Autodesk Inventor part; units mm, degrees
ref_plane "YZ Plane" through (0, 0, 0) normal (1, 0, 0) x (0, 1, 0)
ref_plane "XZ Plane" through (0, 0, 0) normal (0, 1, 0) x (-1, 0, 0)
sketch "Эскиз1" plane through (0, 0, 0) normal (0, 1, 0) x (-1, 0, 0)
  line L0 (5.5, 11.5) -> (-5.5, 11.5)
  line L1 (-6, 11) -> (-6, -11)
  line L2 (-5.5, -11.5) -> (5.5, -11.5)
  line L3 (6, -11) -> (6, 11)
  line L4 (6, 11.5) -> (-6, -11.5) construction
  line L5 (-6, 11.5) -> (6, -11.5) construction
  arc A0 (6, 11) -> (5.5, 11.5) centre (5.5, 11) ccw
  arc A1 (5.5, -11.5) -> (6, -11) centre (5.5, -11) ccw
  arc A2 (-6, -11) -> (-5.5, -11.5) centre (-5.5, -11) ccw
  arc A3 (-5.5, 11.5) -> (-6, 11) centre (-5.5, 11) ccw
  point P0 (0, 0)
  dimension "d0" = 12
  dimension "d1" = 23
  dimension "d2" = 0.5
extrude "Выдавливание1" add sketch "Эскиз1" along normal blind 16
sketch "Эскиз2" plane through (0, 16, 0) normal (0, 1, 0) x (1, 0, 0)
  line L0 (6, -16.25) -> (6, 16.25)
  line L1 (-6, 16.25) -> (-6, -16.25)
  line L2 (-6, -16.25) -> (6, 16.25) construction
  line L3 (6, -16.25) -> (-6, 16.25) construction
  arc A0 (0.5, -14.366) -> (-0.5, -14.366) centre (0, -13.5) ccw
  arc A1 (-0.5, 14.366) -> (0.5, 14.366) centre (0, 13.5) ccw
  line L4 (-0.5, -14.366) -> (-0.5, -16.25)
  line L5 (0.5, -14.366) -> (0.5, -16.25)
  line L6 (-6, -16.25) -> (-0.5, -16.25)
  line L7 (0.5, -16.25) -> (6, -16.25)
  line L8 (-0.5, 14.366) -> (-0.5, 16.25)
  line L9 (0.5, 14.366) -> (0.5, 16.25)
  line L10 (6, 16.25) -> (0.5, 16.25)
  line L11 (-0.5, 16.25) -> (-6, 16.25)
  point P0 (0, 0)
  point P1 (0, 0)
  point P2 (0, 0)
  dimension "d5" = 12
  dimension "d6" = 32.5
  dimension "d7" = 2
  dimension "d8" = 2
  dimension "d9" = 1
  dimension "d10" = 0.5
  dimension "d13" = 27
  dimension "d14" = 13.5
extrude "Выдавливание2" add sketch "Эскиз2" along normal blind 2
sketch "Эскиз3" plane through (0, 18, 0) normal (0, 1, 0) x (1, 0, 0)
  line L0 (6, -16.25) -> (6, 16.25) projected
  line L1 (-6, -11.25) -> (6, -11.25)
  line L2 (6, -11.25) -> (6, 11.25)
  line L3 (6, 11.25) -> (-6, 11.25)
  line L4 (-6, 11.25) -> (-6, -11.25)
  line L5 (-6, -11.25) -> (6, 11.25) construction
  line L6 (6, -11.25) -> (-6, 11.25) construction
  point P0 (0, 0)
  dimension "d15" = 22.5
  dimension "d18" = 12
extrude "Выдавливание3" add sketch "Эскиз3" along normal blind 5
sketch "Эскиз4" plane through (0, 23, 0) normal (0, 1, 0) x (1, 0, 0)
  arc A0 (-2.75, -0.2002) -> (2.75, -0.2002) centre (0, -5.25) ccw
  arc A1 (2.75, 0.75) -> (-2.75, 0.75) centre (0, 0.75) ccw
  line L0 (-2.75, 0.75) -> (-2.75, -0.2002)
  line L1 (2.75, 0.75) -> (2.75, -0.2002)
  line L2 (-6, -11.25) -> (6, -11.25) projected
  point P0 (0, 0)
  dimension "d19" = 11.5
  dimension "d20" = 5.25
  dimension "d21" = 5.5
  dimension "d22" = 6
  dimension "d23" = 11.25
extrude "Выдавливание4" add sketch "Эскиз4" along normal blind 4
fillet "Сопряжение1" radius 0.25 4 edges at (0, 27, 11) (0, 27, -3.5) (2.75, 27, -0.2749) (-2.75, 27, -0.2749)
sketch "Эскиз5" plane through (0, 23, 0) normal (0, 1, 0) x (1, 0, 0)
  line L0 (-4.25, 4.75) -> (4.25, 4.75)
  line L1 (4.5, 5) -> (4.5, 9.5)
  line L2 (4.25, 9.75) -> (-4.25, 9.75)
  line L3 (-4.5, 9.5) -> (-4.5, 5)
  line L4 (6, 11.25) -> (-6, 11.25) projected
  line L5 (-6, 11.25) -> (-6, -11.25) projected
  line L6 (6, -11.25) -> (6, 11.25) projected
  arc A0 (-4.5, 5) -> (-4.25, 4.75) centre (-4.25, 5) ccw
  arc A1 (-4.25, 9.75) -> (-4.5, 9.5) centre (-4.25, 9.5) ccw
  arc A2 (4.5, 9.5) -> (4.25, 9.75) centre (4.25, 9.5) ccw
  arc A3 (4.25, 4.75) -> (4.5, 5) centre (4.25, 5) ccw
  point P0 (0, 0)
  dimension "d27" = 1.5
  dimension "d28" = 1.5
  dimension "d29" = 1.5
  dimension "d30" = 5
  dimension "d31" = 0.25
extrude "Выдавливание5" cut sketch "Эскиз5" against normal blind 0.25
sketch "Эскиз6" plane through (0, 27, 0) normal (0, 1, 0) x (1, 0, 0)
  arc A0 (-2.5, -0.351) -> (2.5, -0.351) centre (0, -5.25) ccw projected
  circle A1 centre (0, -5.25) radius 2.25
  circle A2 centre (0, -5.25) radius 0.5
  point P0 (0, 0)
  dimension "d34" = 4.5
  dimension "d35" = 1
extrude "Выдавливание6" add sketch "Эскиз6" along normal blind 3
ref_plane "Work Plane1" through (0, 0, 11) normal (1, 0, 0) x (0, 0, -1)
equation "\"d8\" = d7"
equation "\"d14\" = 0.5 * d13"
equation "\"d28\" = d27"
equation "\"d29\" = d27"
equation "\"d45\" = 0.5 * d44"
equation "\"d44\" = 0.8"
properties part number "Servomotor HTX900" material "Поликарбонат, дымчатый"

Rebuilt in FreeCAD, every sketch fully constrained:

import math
import FreeCAD as App
import Part
import Sketcher


def edges_at(feature, points):
    """Names of the edges that pass closest to the given points."""
    edges = feature.Shape.Edges
    near = lambda p: min(range(len(edges)), key=lambda i: edges[i].distToShape(Part.Vertex(*p))[0])
    return sorted({f"Edge{near(p) + 1}" for p in points})


def add_polygon(sketch, points):
    """Adds a closed chain of lines whose ends are joined by coincident constraints."""
    first, n = sketch.GeometryCount, len(points)
    for a, b in zip(points, points[1:] + points[:1]):
        sketch.addGeometry(Part.LineSegment(App.Vector(*a, 0), App.Vector(*b, 0)), False)
    for i in range(n):
        sketch.addConstraint(Sketcher.Constraint("Coincident", first + i, 2, first + (i + 1) % n, 1))

doc = App.newDocument("Part")
body = doc.addObject("PartDesign::Body", "Body")

sketch1 = body.newObject("Sketcher::SketchObject", "Sketch")
sketch1.AttachmentSupport = (doc.getObject("XZ_Plane"), [""])
sketch1.MapMode = "FlatFace"
sketch1.addGeometry(Part.ArcOfCircle(Part.Circle(App.Vector(-5.5, 11, 0), App.Vector(0, 0, 1), 0.5), math.radians(90), math.radians(180)), False)
sketch1.addGeometry(Part.LineSegment(App.Vector(-5.5, 11.5, 0), App.Vector(5.5, 11.5, 0)), False)
sketch1.addGeometry(Part.ArcOfCircle(Part.Circle(App.Vector(5.5, 11, 0), App.Vector(0, 0, 1), 0.5), math.radians(0), math.radians(90)), False)
sketch1.addGeometry(Part.LineSegment(App.Vector(6, 11, 0), App.Vector(6, -11, 0)), False)
sketch1.addGeometry(Part.ArcOfCircle(Part.Circle(App.Vector(5.5, -11, 0), App.Vector(0, 0, 1), 0.5), math.radians(-90), math.radians(0)), False)
sketch1.addGeometry(Part.LineSegment(App.Vector(5.5, -11.5, 0), App.Vector(-5.5, -11.5, 0)), False)
sketch1.addGeometry(Part.ArcOfCircle(Part.Circle(App.Vector(-5.5, -11, 0), App.Vector(0, 0, 1), 0.5), math.radians(180), math.radians(270)), False)
sketch1.addGeometry(Part.LineSegment(App.Vector(-6, -11, 0), App.Vector(-6, 11, 0)), False)
sketch1.addConstraint(Sketcher.Constraint("Tangent", 0, 1, 1, 1))
sketch1.addConstraint(Sketcher.Constraint("Tangent", 1, 2, 2, 2))
sketch1.addConstraint(Sketcher.Constraint("Tangent", 2, 1, 3, 1))
sketch1.addConstraint(Sketcher.Constraint("Tangent", 3, 2, 4, 2))
sketch1.addConstraint(Sketcher.Constraint("Tangent", 4, 1, 5, 1))
sketch1.addConstraint(Sketcher.Constraint("Tangent", 5, 2, 6, 2))
sketch1.addConstraint(Sketcher.Constraint("Tangent", 6, 1, 7, 1))
sketch1.addConstraint(Sketcher.Constraint("Tangent", 7, 2, 0, 2))
sketch1.addConstraint(Sketcher.Constraint("Horizontal", 1))
sketch1.addConstraint(Sketcher.Constraint("Vertical", 3))
sketch1.addConstraint(Sketcher.Constraint("Horizontal", 5))
sketch1.addConstraint(Sketcher.Constraint("Vertical", 7))
sketch1.addConstraint(Sketcher.Constraint("Equal", 0, 2))
sketch1.addConstraint(Sketcher.Constraint("Equal", 2, 4))
sketch1.addConstraint(Sketcher.Constraint("Equal", 4, 6))
sketch1.addConstraint(Sketcher.Constraint("Symmetric", 0, 3, 4, 3, -1, 1))
sketch1.addConstraint(Sketcher.Constraint("Radius", 0, 0.5))
sketch1.addConstraint(Sketcher.Constraint("DistanceX", 6, 1, 3, 2, 12.0))
sketch1.addConstraint(Sketcher.Constraint("DistanceY", 3, 2, 3, 1, 22.0))
pad1 = body.newObject("PartDesign::Pad", "Pad")
pad1.Profile = sketch1
pad1.Length = 16
pad1.Reversed = True

sketch2 = body.newObject("Sketcher::SketchObject", "Sketch001")
sketch2.AttachmentSupport = (doc.getObject("XZ_Plane"), [""])
sketch2.MapMode = "FlatFace"
sketch2.AttachmentOffset = App.Placement(App.Vector(0, 0, -16), App.Rotation())
sketch2.addGeometry(Part.LineSegment(App.Vector(0.5, 16.2, 0), App.Vector(6, 16.2, 0)), False)
sketch2.addGeometry(Part.LineSegment(App.Vector(6, 16.2, 0), App.Vector(6, -16.2, 0)), False)
sketch2.addGeometry(Part.LineSegment(App.Vector(6, -16.2, 0), App.Vector(0.5, -16.2, 0)), False)
sketch2.addGeometry(Part.LineSegment(App.Vector(0.5, -16.2, 0), App.Vector(0.5, -14.4, 0)), False)
sketch2.addGeometry(Part.ArcOfCircle(Part.Circle(App.Vector(0, -13.5, 0), App.Vector(0, 0, 1), 1), math.radians(-60), math.radians(240)), False)
sketch2.addGeometry(Part.LineSegment(App.Vector(-0.5, -14.4, 0), App.Vector(-0.5, -16.2, 0)), False)
sketch2.addGeometry(Part.LineSegment(App.Vector(-0.5, -16.2, 0), App.Vector(-6, -16.2, 0)), False)
sketch2.addGeometry(Part.LineSegment(App.Vector(-6, -16.2, 0), App.Vector(-6, 16.2, 0)), False)
sketch2.addGeometry(Part.LineSegment(App.Vector(-6, 16.2, 0), App.Vector(-0.5, 16.2, 0)), False)
sketch2.addGeometry(Part.LineSegment(App.Vector(-0.5, 16.2, 0), App.Vector(-0.5, 14.4, 0)), False)
sketch2.addGeometry(Part.ArcOfCircle(Part.Circle(App.Vector(0, 13.5, 0), App.Vector(0, 0, 1), 1), math.radians(120), math.radians(420)), False)
sketch2.addGeometry(Part.LineSegment(App.Vector(0.5, 14.4, 0), App.Vector(0.5, 16.2, 0)), False)
sketch2.addConstraint(Sketcher.Constraint("Coincident", 0, 2, 1, 1))
sketch2.addConstraint(Sketcher.Constraint("Coincident", 1, 2, 2, 1))
sketch2.addConstraint(Sketcher.Constraint("Coincident", 2, 2, 3, 1))
sketch2.addConstraint(Sketcher.Constraint("Coincident", 3, 2, 4, 1))
sketch2.addConstraint(Sketcher.Constraint("Coincident", 4, 2, 5, 1))
sketch2.addConstraint(Sketcher.Constraint("Coincident", 5, 2, 6, 1))
sketch2.addConstraint(Sketcher.Constraint("Coincident", 6, 2, 7, 1))
sketch2.addConstraint(Sketcher.Constraint("Coincident", 7, 2, 8, 1))
sketch2.addConstraint(Sketcher.Constraint("Coincident", 8, 2, 9, 1))
sketch2.addConstraint(Sketcher.Constraint("Coincident", 9, 2, 10, 1))
sketch2.addConstraint(Sketcher.Constraint("Coincident", 10, 2, 11, 1))
sketch2.addConstraint(Sketcher.Constraint("Coincident", 11, 2, 0, 1))
sketch2.addConstraint(Sketcher.Constraint("Horizontal", 0))
sketch2.addConstraint(Sketcher.Constraint("Vertical", 1))
sketch2.addConstraint(Sketcher.Constraint("Horizontal", 2))
sketch2.addConstraint(Sketcher.Constraint("Vertical", 3))
sketch2.addConstraint(Sketcher.Constraint("Vertical", 5))
sketch2.addConstraint(Sketcher.Constraint("Horizontal", 6))
sketch2.addConstraint(Sketcher.Constraint("Vertical", 7))
sketch2.addConstraint(Sketcher.Constraint("Horizontal", 8))
sketch2.addConstraint(Sketcher.Constraint("Vertical", 9))
sketch2.addConstraint(Sketcher.Constraint("Vertical", 11))
sketch2.addConstraint(Sketcher.Constraint("Equal", 4, 10))
sketch2.addConstraint(Sketcher.Constraint("Symmetric", 4, 3, 10, 3, -1, 1))
sketch2.addConstraint(Sketcher.Constraint("Symmetric", 0, 2, 6, 2, -1, 1))
sketch2.addConstraint(Sketcher.Constraint("Symmetric", 2, 2, 8, 2, -1, 1))
sketch2.addConstraint(Sketcher.Constraint("Symmetric", 3, 2, 4, 2, -2))
sketch2.addConstraint(Sketcher.Constraint("Symmetric", 8, 2, 11, 2, -2))
sketch2.addConstraint(Sketcher.Constraint("Radius", 4, 1.0))
sketch2.addConstraint(Sketcher.Constraint("DistanceY", 1, 2, 1, 1, 32.5))
sketch2.addConstraint(Sketcher.Constraint("DistanceY", 4, 3, 10, 3, 27.0))
sketch2.addConstraint(Sketcher.Constraint("DistanceX", 4, 2, 3, 2, 1.0))
sketch2.addConstraint(Sketcher.Constraint("DistanceX", 7, 2, 0, 2, 12.0))
pad2 = body.newObject("PartDesign::Pad", "Pad001")
pad2.Profile = sketch2
pad2.Length = 2
pad2.Reversed = True

sketch3 = body.newObject("Sketcher::SketchObject", "Sketch002")
sketch3.AttachmentSupport = (doc.getObject("XZ_Plane"), [""])
sketch3.MapMode = "FlatFace"
sketch3.AttachmentOffset = App.Placement(App.Vector(0, 0, -18), App.Rotation())
add_polygon(sketch3, [(-6, 11), (6, 11), (6, -11), (-6, -11)])
sketch3.addConstraint(Sketcher.Constraint("Horizontal", 0))
sketch3.addConstraint(Sketcher.Constraint("Vertical", 1))
sketch3.addConstraint(Sketcher.Constraint("Horizontal", 2))
sketch3.addConstraint(Sketcher.Constraint("Vertical", 3))
sketch3.addConstraint(Sketcher.Constraint("Symmetric", 0, 2, 2, 2, -1, 1))
sketch3.addConstraint(Sketcher.Constraint("DistanceX", 0, 1, 0, 2, 12.0))
sketch3.addConstraint(Sketcher.Constraint("DistanceY", 1, 2, 1, 1, 22.5))
pad3 = body.newObject("PartDesign::Pad", "Pad002")
pad3.Profile = sketch3
pad3.Length = 5
pad3.Reversed = True

sketch4 = body.newObject("Sketcher::SketchObject", "Sketch003")
sketch4.AttachmentSupport = (doc.getObject("XZ_Plane"), [""])
sketch4.MapMode = "FlatFace"
sketch4.AttachmentOffset = App.Placement(App.Vector(0, 0, -23), App.Rotation())
sketch4.addGeometry(Part.LineSegment(App.Vector(-2.8, -0.8, 0), App.Vector(-2.8, 0.2, 0)), False)
sketch4.addGeometry(Part.ArcOfCircle(Part.Circle(App.Vector(0, 5.2, 0), App.Vector(0, 0, 1), 5.8), math.radians(-61), math.radians(241)), False)
sketch4.addGeometry(Part.LineSegment(App.Vector(2.8, 0.2, 0), App.Vector(2.8, -0.8, 0)), False)
sketch4.addGeometry(Part.ArcOfCircle(Part.Circle(App.Vector(0, -0.8, 0), App.Vector(0, 0, 1), 2.8), math.radians(180), math.radians(360)), False)
sketch4.addConstraint(Sketcher.Constraint("Coincident", 0, 2, 1, 2))
sketch4.addConstraint(Sketcher.Constraint("Coincident", 1, 1, 2, 1))
sketch4.addConstraint(Sketcher.Constraint("Tangent", 2, 2, 3, 2))
sketch4.addConstraint(Sketcher.Constraint("Tangent", 3, 1, 0, 1))
sketch4.addConstraint(Sketcher.Constraint("Vertical", 0))
sketch4.addConstraint(Sketcher.Constraint("Vertical", 2))
sketch4.addConstraint(Sketcher.Constraint("Symmetric", 0, 2, 1, 1, -2))
sketch4.addConstraint(Sketcher.Constraint("Radius", 1, 5.75))
sketch4.addConstraint(Sketcher.Constraint("Radius", 3, 2.75))
sketch4.addConstraint(Sketcher.Constraint("DistanceY", 3, 3, 1, 3, 6.0))
sketch4.addConstraint(Sketcher.Constraint("DistanceY", -1, 1, 1, 3, 5.25))
pad4 = body.newObject("PartDesign::Pad", "Pad003")
pad4.Profile = sketch4
pad4.Length = 4
pad4.Reversed = True
doc.recompute()

fillet = body.newObject("PartDesign::Fillet", "Fillet")
fillet.Base = (pad4, edges_at(pad4, [
    (0, 27, 11),
    (0, 27, -3.5),
    (2.75, 27, -0.275),
    (-2.75, 27, -0.275),
]))
fillet.Radius = 0.25

sketch5 = body.newObject("Sketcher::SketchObject", "Sketch004")
sketch5.AttachmentSupport = (doc.getObject("XZ_Plane"), [""])
sketch5.MapMode = "FlatFace"
sketch5.AttachmentOffset = App.Placement(App.Vector(0, 0, -23), App.Rotation())
sketch5.addGeometry(Part.ArcOfCircle(Part.Circle(App.Vector(-4.25, -5, 0), App.Vector(0, 0, 1), 0.25), math.radians(90), math.radians(180)), False)
sketch5.addGeometry(Part.LineSegment(App.Vector(-4.25, -4.75, 0), App.Vector(4.25, -4.75, 0)), False)
sketch5.addGeometry(Part.ArcOfCircle(Part.Circle(App.Vector(4.25, -5, 0), App.Vector(0, 0, 1), 0.25), math.radians(0), math.radians(90)), False)
sketch5.addGeometry(Part.LineSegment(App.Vector(4.5, -5, 0), App.Vector(4.5, -9.5, 0)), False)
sketch5.addGeometry(Part.ArcOfCircle(Part.Circle(App.Vector(4.25, -9.5, 0), App.Vector(0, 0, 1), 0.25), math.radians(-90), math.radians(0)), False)
sketch5.addGeometry(Part.LineSegment(App.Vector(4.25, -9.75, 0), App.Vector(-4.25, -9.75, 0)), False)
sketch5.addGeometry(Part.ArcOfCircle(Part.Circle(App.Vector(-4.25, -9.5, 0), App.Vector(0, 0, 1), 0.25), math.radians(180), math.radians(270)), False)
sketch5.addGeometry(Part.LineSegment(App.Vector(-4.5, -9.5, 0), App.Vector(-4.5, -5, 0)), False)
sketch5.addConstraint(Sketcher.Constraint("Tangent", 0, 1, 1, 1))
sketch5.addConstraint(Sketcher.Constraint("Tangent", 1, 2, 2, 2))
sketch5.addConstraint(Sketcher.Constraint("Tangent", 2, 1, 3, 1))
sketch5.addConstraint(Sketcher.Constraint("Tangent", 3, 2, 4, 2))
sketch5.addConstraint(Sketcher.Constraint("Tangent", 4, 1, 5, 1))
sketch5.addConstraint(Sketcher.Constraint("Tangent", 5, 2, 6, 2))
sketch5.addConstraint(Sketcher.Constraint("Tangent", 6, 1, 7, 1))
sketch5.addConstraint(Sketcher.Constraint("Tangent", 7, 2, 0, 2))
sketch5.addConstraint(Sketcher.Constraint("Horizontal", 1))
sketch5.addConstraint(Sketcher.Constraint("Vertical", 3))
sketch5.addConstraint(Sketcher.Constraint("Horizontal", 5))
sketch5.addConstraint(Sketcher.Constraint("Vertical", 7))
sketch5.addConstraint(Sketcher.Constraint("Equal", 0, 2))
sketch5.addConstraint(Sketcher.Constraint("Equal", 2, 4))
sketch5.addConstraint(Sketcher.Constraint("Equal", 4, 6))
sketch5.addConstraint(Sketcher.Constraint("Radius", 0, 0.25))
sketch5.addConstraint(Sketcher.Constraint("DistanceY", 0, 3, -1, 1, 5.0))
sketch5.addConstraint(Sketcher.Constraint("DistanceY", 4, 1, 1, 2, 5.0))
sketch5.addConstraint(Sketcher.Constraint("DistanceX", 1, 1, 1, 2, 8.5))
sketch5.addConstraint(Sketcher.Constraint("DistanceX", -1, 1, 2, 1, 4.5))
pocket1 = body.newObject("PartDesign::Pocket", "Pocket")
pocket1.Profile = sketch5
pocket1.Length = 0.25
pocket1.Reversed = True

sketch6 = body.newObject("Sketcher::SketchObject", "Sketch005")
sketch6.AttachmentSupport = (doc.getObject("XZ_Plane"), [""])
sketch6.MapMode = "FlatFace"
sketch6.AttachmentOffset = App.Placement(App.Vector(0, 0, -27), App.Rotation())
sketch6.addGeometry(Part.Circle(App.Vector(0, 5.2, 0), App.Vector(0, 0, 1), 2.2), False)
sketch6.addGeometry(Part.Circle(App.Vector(0, 5.2, 0), App.Vector(0, 0, 1), 0.5), False)
sketch6.addConstraint(Sketcher.Constraint("Coincident", 1, 3, 0, 3))
sketch6.addConstraint(Sketcher.Constraint("PointOnObject", 0, 3, -2))
sketch6.addConstraint(Sketcher.Constraint("Diameter", 1, 1.0))
sketch6.addConstraint(Sketcher.Constraint("Diameter", 0, 4.5))
sketch6.addConstraint(Sketcher.Constraint("DistanceY", -1, 1, 0, 3, 5.25))
pad5 = body.newObject("PartDesign::Pad", "Pad004")
pad5.Profile = sketch6
pad5.Length = 3
pad5.Reversed = True

doc.recompute()
